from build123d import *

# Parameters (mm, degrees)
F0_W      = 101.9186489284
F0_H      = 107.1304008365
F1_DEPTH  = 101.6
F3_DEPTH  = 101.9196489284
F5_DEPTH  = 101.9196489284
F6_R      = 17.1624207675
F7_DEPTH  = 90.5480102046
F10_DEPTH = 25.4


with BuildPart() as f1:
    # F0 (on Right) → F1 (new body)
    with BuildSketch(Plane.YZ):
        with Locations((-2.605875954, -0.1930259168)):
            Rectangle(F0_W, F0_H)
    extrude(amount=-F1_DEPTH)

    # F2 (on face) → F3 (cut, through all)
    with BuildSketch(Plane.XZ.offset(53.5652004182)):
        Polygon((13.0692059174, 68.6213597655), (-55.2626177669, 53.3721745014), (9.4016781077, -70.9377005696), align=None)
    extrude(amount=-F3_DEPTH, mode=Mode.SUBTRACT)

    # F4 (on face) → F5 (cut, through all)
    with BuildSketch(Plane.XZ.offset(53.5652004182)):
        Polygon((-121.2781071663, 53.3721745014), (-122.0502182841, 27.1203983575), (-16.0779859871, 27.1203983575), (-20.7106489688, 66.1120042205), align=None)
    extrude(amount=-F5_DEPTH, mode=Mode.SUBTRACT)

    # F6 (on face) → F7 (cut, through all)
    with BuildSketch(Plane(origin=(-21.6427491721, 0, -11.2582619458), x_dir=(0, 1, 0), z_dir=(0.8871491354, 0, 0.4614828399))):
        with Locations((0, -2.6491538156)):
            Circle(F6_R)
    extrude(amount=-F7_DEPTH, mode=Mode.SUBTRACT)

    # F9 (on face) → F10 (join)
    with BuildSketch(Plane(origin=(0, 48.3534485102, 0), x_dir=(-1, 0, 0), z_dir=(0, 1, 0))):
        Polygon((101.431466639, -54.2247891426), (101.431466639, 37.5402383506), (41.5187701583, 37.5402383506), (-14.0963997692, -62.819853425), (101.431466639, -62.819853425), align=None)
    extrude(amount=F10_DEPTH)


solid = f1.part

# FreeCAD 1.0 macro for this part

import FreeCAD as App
import Part
import Sketcher
from FreeCAD import Vector
Q = App.Units.Quantity


def add_polygon(sketch, points):
    """Adds a closed chain of lines whose ends are joined by coincident constraints."""
    first, n = sketch.GeometryCount, len(points)
    for a, b in zip(points, points[1:] + points[:1]):
        sketch.addGeometry(Part.LineSegment(App.Vector(*a, 0), App.Vector(*b, 0)), False)
    for i in range(n):
        sketch.addConstraint(Sketcher.Constraint("Coincident", first + i, 2, first + (i + 1) % n, 1))

doc = App.newDocument("Part")
body = doc.addObject("PartDesign::Body", "Body")

# Sketch on YZ plane
sketch1 = body.newObject("Sketcher::SketchObject", "Sketch")
sketch1.AttachmentSupport = (doc.getObject("YZ_Plane"), [""])
sketch1.MapMode = "FlatFace"
add_polygon(sketch1, [(-53.5652, 53.372175), (-53.5652, -53.758226), (48.353449, -53.758226), (48.353449, 53.372175)])  # lines 0-3
sketch1.addConstraint([
    Sketcher.Constraint("Vertical", 0),
    Sketcher.Constraint("Horizontal", 1),
    Sketcher.Constraint("Vertical", 2),
    Sketcher.Constraint("Horizontal", 3),
    Sketcher.Constraint("DistanceY", 0, 2, 0, 1, 107.130401),
    Sketcher.Constraint("DistanceX", 1, 1, 1, 2, 101.918649),
    Sketcher.Constraint("DistanceX", 0, 2, -1, 1, 53.5652),
    Sketcher.Constraint("DistanceY", 0, 2, -1, 1, 53.758226),
])
pad1 = body.newObject("PartDesign::Pad", "Pad")
pad1.Profile = sketch1
pad1.Length = Q("4 in")
pad1.Reversed = True

# Sketch on XZ plane
sketch2 = body.newObject("Sketcher::SketchObject", "Sketch001")
sketch2.AttachmentSupport = (doc.getObject("XZ_Plane"), [""])
sketch2.MapMode = "FlatFace"
sketch2.AttachmentOffset = App.Placement(Vector(0, 0, 53.5652), App.Rotation())
add_polygon(sketch2, [(13.069206, 68.62136), (-55.262618, 53.372175), (9.401678, -70.937701)])  # lines 0-2
sketch2.addConstraint([
    Sketcher.Constraint("DistanceY", 1, 2, -1, 1, 70.937701),
    Sketcher.Constraint("Distance", 1, 140.122861),
    Sketcher.Constraint("DistanceX", -1, 1, 1, 2, 9.401678),
    Sketcher.Constraint("DistanceY", -1, 1, 2, 2, 68.62136),
    Sketcher.Constraint("Distance", 0, 70.012683),
    Sketcher.Constraint("Distance", 2, 139.607242),
])
pocket1 = body.newObject("PartDesign::Pocket", "Pocket")
pocket1.Profile = sketch2
pocket1.Type = "ThroughAll"

# Sketch on XZ plane
sketch3 = body.newObject("Sketcher::SketchObject", "Sketch002")
sketch3.AttachmentSupport = (doc.getObject("XZ_Plane"), [""])
sketch3.MapMode = "FlatFace"
sketch3.AttachmentOffset = App.Placement(Vector(0, 0, 53.5652), App.Rotation())
add_polygon(sketch3, [(-121.278107, 53.372175), (-122.050218, 27.120398), (-16.077986, 27.120398), (-20.710649, 66.112004)])  # lines 0-3
sketch3.addConstraint([
    Sketcher.Constraint("Horizontal", 1),
    Sketcher.Constraint("DistanceY", -1, 1, 0, 2, 27.120398),
    Sketcher.Constraint("Distance", 0, 26.263128),
    Sketcher.Constraint("Distance", 2, 39.265849),
    Sketcher.Constraint("DistanceX", 1, 1, 1, 2, 105.972232),
    Sketcher.Constraint("DistanceX", 0, 2, -1, 1, 122.050218),
    Sketcher.Constraint("DistanceX", 2, 2, -1, 1, 20.710649),
    Sketcher.Constraint("DistanceX", 0, 2, 3, 2, 0.772111),
])
pocket2 = body.newObject("PartDesign::Pocket", "Pocket001")
pocket2.Profile = sketch3
pocket2.Type = "ThroughAll"

# Sketch on an angled plane
sketch4 = body.newObject("Sketcher::SketchObject", "Sketch003")
sketch4.Placement = App.Placement(Vector(-21.642749, 0, -11.258262), App.Rotation(Vector(0, 1, 0), Vector(-0.46148284, 0, 0.887149135), Vector(0.887149135, 0, 0.46148284), "ZXY"))
sketch4.addGeometry(Part.Circle(Vector(0, -2.649154, 0), Vector(0, 0, 1), 17.162421), False)
sketch4.addConstraint([
    Sketcher.Constraint("PointOnObject", 0, 3, -2),
    Sketcher.Constraint("Diameter", 0, 34.324842),
    Sketcher.Constraint("DistanceY", 0, 3, -1, 1, 2.649154),
])
pocket3 = body.newObject("PartDesign::Pocket", "Pocket002")
pocket3.Profile = sketch4
pocket3.Type = "ThroughAll"

# Sketch on XZ plane
sketch5 = body.newObject("Sketcher::SketchObject", "Sketch004")
sketch5.AttachmentSupport = (doc.getObject("XZ_Plane"), [""])
sketch5.MapMode = "FlatFace"
sketch5.AttachmentOffset = App.Placement(Vector(0, 0, -48.353449), App.Rotation())
add_polygon(sketch5, [(-101.431467, 37.540238), (-41.51877, 37.540238), (14.0964, -62.819853), (-101.431467, -62.819853)])  # lines 0-3
sketch5.addConstraint([
    Sketcher.Constraint("Horizontal", 0),
    Sketcher.Constraint("Horizontal", 2),
    Sketcher.Constraint("Vertical", 3),
    Sketcher.Constraint("DistanceY", 3, 1, 3, 2, 100.360092),
    Sketcher.Constraint("DistanceX", -1, 1, 1, 2, 14.0964),
    Sketcher.Constraint("DistanceX", 0, 1, 0, 2, 59.912696),
    Sketcher.Constraint("DistanceX", 2, 2, 2, 1, 115.527866),
    Sketcher.Constraint("DistanceY", -1, 1, 0, 2, 37.540238),
])
pad2 = body.newObject("PartDesign::Pad", "Pad001")
pad2.Profile = sketch5
pad2.Length = Q("1 in")
pad2.Reversed = True

doc.recompute()
